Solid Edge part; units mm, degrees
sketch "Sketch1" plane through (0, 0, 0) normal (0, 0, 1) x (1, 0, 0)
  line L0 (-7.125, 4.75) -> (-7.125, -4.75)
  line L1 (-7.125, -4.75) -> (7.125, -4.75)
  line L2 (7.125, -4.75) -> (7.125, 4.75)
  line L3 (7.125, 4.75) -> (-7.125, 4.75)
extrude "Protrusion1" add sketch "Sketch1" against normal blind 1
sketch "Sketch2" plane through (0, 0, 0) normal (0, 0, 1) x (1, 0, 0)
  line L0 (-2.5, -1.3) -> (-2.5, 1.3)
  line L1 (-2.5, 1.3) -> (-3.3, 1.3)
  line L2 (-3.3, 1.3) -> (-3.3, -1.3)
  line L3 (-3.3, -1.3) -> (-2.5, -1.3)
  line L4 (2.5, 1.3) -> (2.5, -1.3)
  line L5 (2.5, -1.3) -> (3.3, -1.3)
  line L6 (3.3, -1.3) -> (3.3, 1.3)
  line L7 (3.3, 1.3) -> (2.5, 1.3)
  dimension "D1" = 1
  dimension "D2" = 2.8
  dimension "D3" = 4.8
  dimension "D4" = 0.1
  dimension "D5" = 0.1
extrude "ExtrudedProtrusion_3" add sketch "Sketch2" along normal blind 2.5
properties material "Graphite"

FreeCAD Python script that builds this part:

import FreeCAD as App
import Part
import Sketcher

V = App.Vector
Q = App.Units.Quantity


def add_polygon(sketch, points):
    """Adds a closed chain of lines whose ends are joined by coincident constraints."""
    first, n = sketch.GeometryCount, len(points)
    for a, b in zip(points, points[1:] + points[:1]):
        sketch.addGeometry(Part.LineSegment(App.Vector(*a, 0), App.Vector(*b, 0)), False)
    for i in range(n):
        sketch.addConstraint(Sketcher.Constraint("Coincident", first + i, 2, first + (i + 1) % n, 1))

doc = App.newDocument("Part")
body = doc.addObject("PartDesign::Body", "Body")

# Sketch on XY plane
sketch1 = body.newObject("Sketcher::SketchObject", "Sketch")
sketch1.AttachmentSupport = (doc.getObject("XY_Plane"), [""])
sketch1.MapMode = "FlatFace"
add_polygon(sketch1, [(7, 5), (-7, 5), (-7, -5), (7, -5)])  # lines 0-3
sketch1.addConstraint([
    Sketcher.Constraint("Horizontal", 0),
    Sketcher.Constraint("Vertical", 1),
    Sketcher.Constraint("Horizontal", 2),
    Sketcher.Constraint("Vertical", 3),
    Sketcher.Constraint("Symmetric", 0, 2, 2, 2, -1, 1),
    Sketcher.Constraint("DistanceY", 1, 2, 1, 1, Q("9.5 mm")),
    Sketcher.Constraint("DistanceX", 0, 2, 0, 1, Q("14.25 mm")),
])
pad1 = body.newObject("PartDesign::Pad", "Pad")
pad1.Profile = sketch1
pad1.Length = 1
pad1.Reversed = True

# Sketch on XY plane
sketch2 = body.newObject("Sketcher::SketchObject", "Sketch001")
sketch2.AttachmentSupport = (doc.getObject("XY_Plane"), [""])
sketch2.MapMode = "FlatFace"
add_polygon(sketch2, [(-3.3, -1.3), (-2.5, -1.3), (-2.5, 1.3), (-3.3, 1.3)])  # lines 0-3
add_polygon(sketch2, [(3.3, 1.3), (2.5, 1.3), (2.5, -1.3), (3.3, -1.3)])  # lines 4-7
sketch2.addConstraint([
    Sketcher.Constraint("Horizontal", 0),
    Sketcher.Constraint("Vertical", 1),
    Sketcher.Constraint("Horizontal", 2),
    Sketcher.Constraint("Vertical", 3),
    Sketcher.Constraint("Horizontal", 4),
    Sketcher.Constraint("Vertical", 5),
    Sketcher.Constraint("Horizontal", 6),
    Sketcher.Constraint("Vertical", 7),
    Sketcher.Constraint("Symmetric", 0, 2, 4, 2, -1, 1),
    Sketcher.Constraint("Symmetric", 2, 2, 6, 2, -1, 1),
    Sketcher.Constraint("Horizontal", 2, 2, 4, 2),
    Sketcher.Constraint("DistanceX", 0, 1, 0, 2, Q("0.8 mm")),
    Sketcher.Constraint("DistanceY", 1, 1, 1, 2, Q("2.6 mm")),
    Sketcher.Constraint("DistanceX", 1, 2, 4, 2, Q("5 mm")),
])
pad2 = body.newObject("PartDesign::Pad", "Pad001")
pad2.Profile = sketch2
pad2.Length = 2.5

doc.recompute()
